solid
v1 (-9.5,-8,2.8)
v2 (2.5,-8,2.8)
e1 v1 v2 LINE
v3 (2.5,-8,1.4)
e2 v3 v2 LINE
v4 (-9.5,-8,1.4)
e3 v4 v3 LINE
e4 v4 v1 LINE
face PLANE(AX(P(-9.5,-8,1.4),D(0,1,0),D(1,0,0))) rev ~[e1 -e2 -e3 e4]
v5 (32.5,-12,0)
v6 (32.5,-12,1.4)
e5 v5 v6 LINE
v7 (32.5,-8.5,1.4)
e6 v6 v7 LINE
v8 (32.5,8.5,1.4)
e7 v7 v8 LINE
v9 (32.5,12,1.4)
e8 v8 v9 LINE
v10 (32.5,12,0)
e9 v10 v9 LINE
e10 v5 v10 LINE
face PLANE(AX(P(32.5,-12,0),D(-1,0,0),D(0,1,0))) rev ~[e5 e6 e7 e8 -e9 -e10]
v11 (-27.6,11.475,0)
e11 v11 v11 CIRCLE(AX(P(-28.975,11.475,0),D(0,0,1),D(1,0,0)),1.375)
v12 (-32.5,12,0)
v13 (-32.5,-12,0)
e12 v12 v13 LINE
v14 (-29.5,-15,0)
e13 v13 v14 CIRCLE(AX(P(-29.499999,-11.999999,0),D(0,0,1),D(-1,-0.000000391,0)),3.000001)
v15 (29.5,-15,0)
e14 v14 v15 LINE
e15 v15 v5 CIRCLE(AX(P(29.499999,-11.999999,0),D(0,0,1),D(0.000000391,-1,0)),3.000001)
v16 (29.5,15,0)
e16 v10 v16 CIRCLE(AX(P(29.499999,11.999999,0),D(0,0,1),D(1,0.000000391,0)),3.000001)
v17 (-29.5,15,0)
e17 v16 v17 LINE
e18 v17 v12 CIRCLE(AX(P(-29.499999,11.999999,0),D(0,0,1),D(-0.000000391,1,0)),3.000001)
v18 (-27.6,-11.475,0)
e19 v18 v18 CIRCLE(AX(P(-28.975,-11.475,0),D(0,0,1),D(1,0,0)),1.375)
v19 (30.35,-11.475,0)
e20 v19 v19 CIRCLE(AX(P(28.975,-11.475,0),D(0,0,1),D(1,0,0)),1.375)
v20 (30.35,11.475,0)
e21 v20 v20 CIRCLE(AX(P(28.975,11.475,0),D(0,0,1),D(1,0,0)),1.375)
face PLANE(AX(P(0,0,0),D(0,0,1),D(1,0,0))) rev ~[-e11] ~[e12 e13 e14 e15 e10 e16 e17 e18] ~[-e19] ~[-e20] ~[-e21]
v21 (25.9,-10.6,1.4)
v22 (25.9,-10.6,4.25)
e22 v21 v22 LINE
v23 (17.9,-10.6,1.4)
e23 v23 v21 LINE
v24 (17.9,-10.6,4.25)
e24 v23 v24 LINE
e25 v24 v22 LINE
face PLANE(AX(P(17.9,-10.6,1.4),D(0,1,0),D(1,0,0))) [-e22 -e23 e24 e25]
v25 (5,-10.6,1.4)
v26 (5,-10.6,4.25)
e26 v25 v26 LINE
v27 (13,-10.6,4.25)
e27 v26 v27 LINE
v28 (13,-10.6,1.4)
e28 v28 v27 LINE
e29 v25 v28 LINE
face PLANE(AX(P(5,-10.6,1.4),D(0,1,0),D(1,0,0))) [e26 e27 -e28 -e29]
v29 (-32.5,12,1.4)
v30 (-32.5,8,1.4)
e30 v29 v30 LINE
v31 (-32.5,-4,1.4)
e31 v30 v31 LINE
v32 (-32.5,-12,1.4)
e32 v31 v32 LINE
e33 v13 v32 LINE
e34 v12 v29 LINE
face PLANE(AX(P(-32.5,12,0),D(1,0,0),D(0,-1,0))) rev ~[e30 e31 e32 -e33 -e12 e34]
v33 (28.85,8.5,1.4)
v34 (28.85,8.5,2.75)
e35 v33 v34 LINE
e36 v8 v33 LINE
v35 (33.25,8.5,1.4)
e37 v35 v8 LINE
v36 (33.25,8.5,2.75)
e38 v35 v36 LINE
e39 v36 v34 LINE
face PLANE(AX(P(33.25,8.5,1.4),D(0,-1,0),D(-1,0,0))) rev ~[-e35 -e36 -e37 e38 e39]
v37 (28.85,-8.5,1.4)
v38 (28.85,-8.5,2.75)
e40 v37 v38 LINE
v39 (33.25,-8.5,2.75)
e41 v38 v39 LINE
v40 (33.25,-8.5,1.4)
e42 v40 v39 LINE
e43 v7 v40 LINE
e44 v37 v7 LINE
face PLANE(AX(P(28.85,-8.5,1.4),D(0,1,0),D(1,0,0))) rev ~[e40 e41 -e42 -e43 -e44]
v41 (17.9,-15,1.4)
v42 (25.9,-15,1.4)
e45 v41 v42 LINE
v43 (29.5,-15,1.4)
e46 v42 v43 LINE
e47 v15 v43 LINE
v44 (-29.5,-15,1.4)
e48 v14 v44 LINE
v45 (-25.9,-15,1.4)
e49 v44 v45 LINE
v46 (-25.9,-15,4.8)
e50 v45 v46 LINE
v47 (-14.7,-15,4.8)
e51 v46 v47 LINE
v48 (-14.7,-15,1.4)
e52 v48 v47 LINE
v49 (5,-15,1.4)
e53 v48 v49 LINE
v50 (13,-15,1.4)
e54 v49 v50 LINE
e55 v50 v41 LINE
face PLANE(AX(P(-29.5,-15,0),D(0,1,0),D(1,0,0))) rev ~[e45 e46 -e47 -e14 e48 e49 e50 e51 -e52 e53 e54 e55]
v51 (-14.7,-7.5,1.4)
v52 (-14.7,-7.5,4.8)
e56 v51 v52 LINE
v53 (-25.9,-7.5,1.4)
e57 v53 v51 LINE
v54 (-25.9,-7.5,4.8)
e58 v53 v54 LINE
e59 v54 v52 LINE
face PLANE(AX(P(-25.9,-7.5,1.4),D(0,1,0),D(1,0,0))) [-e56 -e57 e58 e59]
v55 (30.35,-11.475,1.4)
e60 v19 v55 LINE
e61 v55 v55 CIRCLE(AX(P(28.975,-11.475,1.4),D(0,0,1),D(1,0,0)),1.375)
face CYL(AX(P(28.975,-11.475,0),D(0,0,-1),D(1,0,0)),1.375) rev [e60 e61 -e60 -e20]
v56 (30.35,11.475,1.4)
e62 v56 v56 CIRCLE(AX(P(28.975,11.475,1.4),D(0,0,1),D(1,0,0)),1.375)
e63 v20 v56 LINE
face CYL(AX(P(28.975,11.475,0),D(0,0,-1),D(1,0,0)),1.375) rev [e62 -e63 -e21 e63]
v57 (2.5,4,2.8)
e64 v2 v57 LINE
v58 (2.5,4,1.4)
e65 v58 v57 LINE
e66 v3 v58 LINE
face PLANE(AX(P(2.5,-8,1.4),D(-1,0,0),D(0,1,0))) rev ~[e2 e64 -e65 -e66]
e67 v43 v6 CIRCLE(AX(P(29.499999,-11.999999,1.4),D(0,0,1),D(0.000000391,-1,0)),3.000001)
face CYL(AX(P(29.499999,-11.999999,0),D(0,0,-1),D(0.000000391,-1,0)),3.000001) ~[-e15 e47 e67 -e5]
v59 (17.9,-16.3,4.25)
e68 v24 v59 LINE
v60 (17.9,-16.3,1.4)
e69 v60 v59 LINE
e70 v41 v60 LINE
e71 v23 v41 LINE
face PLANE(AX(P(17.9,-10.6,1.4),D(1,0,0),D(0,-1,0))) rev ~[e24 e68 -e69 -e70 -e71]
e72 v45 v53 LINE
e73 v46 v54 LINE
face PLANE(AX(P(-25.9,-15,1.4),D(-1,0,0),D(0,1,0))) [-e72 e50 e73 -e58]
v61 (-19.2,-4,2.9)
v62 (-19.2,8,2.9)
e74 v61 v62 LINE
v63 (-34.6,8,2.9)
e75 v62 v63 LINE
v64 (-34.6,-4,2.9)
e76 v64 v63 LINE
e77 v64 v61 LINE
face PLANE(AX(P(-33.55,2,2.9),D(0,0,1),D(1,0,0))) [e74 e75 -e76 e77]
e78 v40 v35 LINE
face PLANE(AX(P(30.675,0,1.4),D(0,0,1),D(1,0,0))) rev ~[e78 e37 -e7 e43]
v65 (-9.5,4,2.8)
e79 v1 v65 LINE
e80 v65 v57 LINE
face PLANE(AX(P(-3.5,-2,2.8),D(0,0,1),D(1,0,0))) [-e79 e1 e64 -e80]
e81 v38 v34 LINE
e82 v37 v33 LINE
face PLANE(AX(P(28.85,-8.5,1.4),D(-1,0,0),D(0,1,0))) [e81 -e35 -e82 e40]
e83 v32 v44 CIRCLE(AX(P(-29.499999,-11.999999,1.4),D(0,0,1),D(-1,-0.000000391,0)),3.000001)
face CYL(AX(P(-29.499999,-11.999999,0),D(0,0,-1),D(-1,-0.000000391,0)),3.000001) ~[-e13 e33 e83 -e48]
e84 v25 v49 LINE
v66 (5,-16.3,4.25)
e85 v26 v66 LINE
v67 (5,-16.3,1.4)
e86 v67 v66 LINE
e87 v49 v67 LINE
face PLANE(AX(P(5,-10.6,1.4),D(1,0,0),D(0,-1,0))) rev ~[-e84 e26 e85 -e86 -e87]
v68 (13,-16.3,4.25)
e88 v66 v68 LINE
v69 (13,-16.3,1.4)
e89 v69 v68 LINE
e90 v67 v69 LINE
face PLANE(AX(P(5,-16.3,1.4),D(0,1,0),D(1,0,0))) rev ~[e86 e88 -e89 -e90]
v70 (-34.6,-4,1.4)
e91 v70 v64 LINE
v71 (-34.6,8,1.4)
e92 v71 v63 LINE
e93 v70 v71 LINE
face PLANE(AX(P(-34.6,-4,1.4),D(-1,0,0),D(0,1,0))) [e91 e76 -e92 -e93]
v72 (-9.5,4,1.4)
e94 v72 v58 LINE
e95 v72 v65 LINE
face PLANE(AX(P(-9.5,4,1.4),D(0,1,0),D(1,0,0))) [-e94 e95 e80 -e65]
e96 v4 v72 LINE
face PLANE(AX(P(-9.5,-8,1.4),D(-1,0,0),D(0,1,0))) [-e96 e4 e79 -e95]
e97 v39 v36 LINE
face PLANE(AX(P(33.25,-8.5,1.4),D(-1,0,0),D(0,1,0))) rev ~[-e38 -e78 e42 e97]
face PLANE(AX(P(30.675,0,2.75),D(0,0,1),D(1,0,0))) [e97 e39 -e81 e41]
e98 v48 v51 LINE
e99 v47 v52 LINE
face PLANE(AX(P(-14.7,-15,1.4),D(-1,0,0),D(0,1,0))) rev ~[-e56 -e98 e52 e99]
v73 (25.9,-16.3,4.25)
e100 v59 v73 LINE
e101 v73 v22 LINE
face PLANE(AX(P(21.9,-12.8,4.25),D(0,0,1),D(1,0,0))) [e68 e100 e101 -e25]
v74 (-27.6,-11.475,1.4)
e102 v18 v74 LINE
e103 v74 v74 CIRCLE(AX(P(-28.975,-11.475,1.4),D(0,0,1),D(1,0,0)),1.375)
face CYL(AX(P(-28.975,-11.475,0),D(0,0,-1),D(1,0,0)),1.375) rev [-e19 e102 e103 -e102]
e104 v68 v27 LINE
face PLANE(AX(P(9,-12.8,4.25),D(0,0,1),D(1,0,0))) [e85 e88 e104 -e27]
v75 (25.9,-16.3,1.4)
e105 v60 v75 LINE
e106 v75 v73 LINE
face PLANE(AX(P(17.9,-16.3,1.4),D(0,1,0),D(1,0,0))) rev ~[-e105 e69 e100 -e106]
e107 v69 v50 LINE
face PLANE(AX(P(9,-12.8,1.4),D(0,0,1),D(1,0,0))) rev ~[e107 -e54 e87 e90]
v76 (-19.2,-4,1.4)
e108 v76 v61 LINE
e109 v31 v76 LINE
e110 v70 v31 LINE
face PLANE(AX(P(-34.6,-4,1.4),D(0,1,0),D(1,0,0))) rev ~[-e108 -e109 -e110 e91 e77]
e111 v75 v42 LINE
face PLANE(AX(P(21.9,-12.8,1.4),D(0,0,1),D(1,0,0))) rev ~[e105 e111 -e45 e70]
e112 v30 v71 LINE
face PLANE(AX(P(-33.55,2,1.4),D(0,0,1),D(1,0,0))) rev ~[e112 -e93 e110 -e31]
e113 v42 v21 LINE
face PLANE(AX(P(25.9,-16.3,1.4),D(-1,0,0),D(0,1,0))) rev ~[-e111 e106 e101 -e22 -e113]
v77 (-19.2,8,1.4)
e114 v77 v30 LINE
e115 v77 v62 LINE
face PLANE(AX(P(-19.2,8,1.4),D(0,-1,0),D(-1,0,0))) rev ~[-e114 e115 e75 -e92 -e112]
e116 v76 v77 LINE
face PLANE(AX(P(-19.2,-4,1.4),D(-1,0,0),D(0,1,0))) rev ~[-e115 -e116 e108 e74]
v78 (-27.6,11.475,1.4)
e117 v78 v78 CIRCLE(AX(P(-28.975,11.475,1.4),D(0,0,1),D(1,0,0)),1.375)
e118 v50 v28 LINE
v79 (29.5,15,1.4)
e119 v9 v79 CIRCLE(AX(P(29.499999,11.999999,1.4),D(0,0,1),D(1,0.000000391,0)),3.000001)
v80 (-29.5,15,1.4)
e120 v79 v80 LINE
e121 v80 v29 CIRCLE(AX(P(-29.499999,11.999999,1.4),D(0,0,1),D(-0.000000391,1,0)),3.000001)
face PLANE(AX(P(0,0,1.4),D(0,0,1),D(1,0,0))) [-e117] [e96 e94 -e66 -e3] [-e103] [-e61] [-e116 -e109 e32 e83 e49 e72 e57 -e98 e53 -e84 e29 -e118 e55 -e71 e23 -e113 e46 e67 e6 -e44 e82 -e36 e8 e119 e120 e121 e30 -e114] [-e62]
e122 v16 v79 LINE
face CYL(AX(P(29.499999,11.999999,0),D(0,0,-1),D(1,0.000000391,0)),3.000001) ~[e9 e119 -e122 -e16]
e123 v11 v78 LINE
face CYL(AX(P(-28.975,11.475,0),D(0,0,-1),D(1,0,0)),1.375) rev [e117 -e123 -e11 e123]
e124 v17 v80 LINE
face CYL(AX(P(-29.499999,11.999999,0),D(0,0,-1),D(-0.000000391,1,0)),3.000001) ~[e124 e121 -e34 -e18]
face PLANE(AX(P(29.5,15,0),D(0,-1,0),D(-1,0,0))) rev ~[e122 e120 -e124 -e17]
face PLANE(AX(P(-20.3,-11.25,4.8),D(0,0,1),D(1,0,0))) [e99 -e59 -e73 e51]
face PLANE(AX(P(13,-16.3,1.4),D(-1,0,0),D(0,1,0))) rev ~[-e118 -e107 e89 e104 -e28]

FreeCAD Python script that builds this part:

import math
import FreeCAD as App
import Part
import Sketcher
Q = App.Units.Quantity


def add_polygon(sketch, points):
    """Adds a closed chain of lines whose ends are joined by coincident constraints."""
    first, n = sketch.GeometryCount, len(points)
    for a, b in zip(points, points[1:] + points[:1]):
        sketch.addGeometry(Part.LineSegment(App.Vector(*a, 0), App.Vector(*b, 0)), False)
    for i in range(n):
        sketch.addConstraint(Sketcher.Constraint("Coincident", first + i, 2, first + (i + 1) % n, 1))

doc = App.newDocument("Part")
params = doc.addObject("Spreadsheet::Sheet", "Params")
for row, (alias, value) in enumerate([
    ("sketch1_radius", "3.000001 mm"),
    ("sketch1_diameter", "2.75 mm"),
    ("sketch1_width", "59 mm"),
    ("sketch1_height", "24 mm"),
    ("pad1_length", "1.4 mm"),
    ("sketch2_width", "12 mm"),
    ("pad2_length", "1.4 mm"),
    ("sketch3_width", "11.2 mm"),
    ("sketch3_height", "7.5 mm"),
    ("pad3_length", "3.4 mm"),
    ("sketch4_width", "8 mm"),
    ("sketch4_height", "5.7 mm"),
    ("pad4_length", "2.85 mm"),
    ("sketch5_height", "17 mm"),
    ("sketch5_width", "4.4 mm"),
    ("pad5_length", "1.35 mm"),
    ("sketch6_height", "12 mm"),
    ("sketch6_width", "15.4 mm"),
    ("pad6_length", "1.5 mm"),
], start=1):
    params.set(f"A{row}", alias)
    params.set(f"B{row}", "=" + value)
    params.setAlias(f"B{row}", alias)

body = doc.addObject("PartDesign::Body", "Body")

# Sketch on XY plane
sketch1 = doc.addObject("Sketcher::SketchObject", "Sketch")
body.addObject(sketch1)
sketch1.AttachmentSupport = (doc.XY_Plane, [""])
sketch1.MapMode = "FlatFace"
sketch1.addGeometry(Part.LineSegment(App.Vector(-29.5, -15, 0), App.Vector(29.5, -15, 0)), False)
sketch1.addGeometry(Part.ArcOfCircle(Part.Circle(App.Vector(29.5, -12, 0), App.Vector(0, 0, 1), 3), math.radians(-90), math.radians(0)), False)
sketch1.addGeometry(Part.LineSegment(App.Vector(32.5, -12, 0), App.Vector(32.5, 12, 0)), False)
sketch1.addGeometry(Part.ArcOfCircle(Part.Circle(App.Vector(29.5, 12, 0), App.Vector(0, 0, 1), 3), math.radians(0), math.radians(90)), False)
sketch1.addGeometry(Part.LineSegment(App.Vector(29.5, 15, 0), App.Vector(-29.5, 15, 0)), False)
sketch1.addGeometry(Part.ArcOfCircle(Part.Circle(App.Vector(-29.5, 12, 0), App.Vector(0, 0, 1), 3), math.radians(90), math.radians(180)), False)
sketch1.addGeometry(Part.LineSegment(App.Vector(-32.5, 12, 0), App.Vector(-32.5, -12, 0)), False)
sketch1.addGeometry(Part.ArcOfCircle(Part.Circle(App.Vector(-29.5, -12, 0), App.Vector(0, 0, 1), 3), math.radians(-180), math.radians(-90)), False)
sketch1.addGeometry(Part.Circle(App.Vector(-29, -11.5, 0), App.Vector(0, 0, 1), 1.4), False)
sketch1.addGeometry(Part.Circle(App.Vector(29, -11.5, 0), App.Vector(0, 0, 1), 1.4), False)
sketch1.addGeometry(Part.Circle(App.Vector(-29, 11.5, 0), App.Vector(0, 0, 1), 1.4), False)
sketch1.addGeometry(Part.Circle(App.Vector(29, 11.5, 0), App.Vector(0, 0, 1), 1.4), False)
sketch1.addConstraint(Sketcher.Constraint("Tangent", 0, 2, 1, 1))
sketch1.addConstraint(Sketcher.Constraint("Tangent", 1, 2, 2, 1))
sketch1.addConstraint(Sketcher.Constraint("Tangent", 2, 2, 3, 1))
sketch1.addConstraint(Sketcher.Constraint("Tangent", 3, 2, 4, 1))
sketch1.addConstraint(Sketcher.Constraint("Tangent", 4, 2, 5, 1))
sketch1.addConstraint(Sketcher.Constraint("Tangent", 5, 2, 6, 1))
sketch1.addConstraint(Sketcher.Constraint("Tangent", 6, 2, 7, 1))
sketch1.addConstraint(Sketcher.Constraint("Tangent", 7, 2, 0, 1))
sketch1.addConstraint(Sketcher.Constraint("Horizontal", 0))
sketch1.addConstraint(Sketcher.Constraint("Vertical", 2))
sketch1.addConstraint(Sketcher.Constraint("Horizontal", 4))
sketch1.addConstraint(Sketcher.Constraint("Vertical", 6))
sketch1.addConstraint(Sketcher.Constraint("Equal", 1, 3))
sketch1.addConstraint(Sketcher.Constraint("Equal", 3, 5))
sketch1.addConstraint(Sketcher.Constraint("Equal", 5, 7))
sketch1.addConstraint(Sketcher.Constraint("Equal", 8, 9))
sketch1.addConstraint(Sketcher.Constraint("Equal", 9, 10))
sketch1.addConstraint(Sketcher.Constraint("Equal", 10, 11))
sketch1.addConstraint(Sketcher.Constraint("Symmetric", 1, 3, 5, 3, -1, 1))
sketch1.addConstraint(Sketcher.Constraint("Symmetric", 9, 3, 10, 3, -1, 1))
sketch1.addConstraint(Sketcher.Constraint("Symmetric", 8, 3, 11, 3, -1, 1))
sketch1.addConstraint(Sketcher.Constraint("Symmetric", 8, 3, 9, 3, -2))
sketch1.addConstraint(Sketcher.Constraint("Radius", 1, Q("3.000001 mm")))
sketch1.addConstraint(Sketcher.Constraint("Diameter", 8, Q("2.75 mm")))
sketch1.addConstraint(Sketcher.Constraint("DistanceX", 0, 1, 0, 2, Q("59 mm")))
sketch1.addConstraint(Sketcher.Constraint("DistanceY", 2, 1, 2, 2, Q("24 mm")))
sketch1.addConstraint(Sketcher.Constraint("DistanceX", 8, 3, 9, 3, Q("57.95 mm")))
sketch1.addConstraint(Sketcher.Constraint("DistanceY", 8, 3, 10, 3, Q("22.95 mm")))
sketch1.setExpression("Constraints[22]", "Params.sketch1_radius")
sketch1.setExpression("Constraints[23]", "Params.sketch1_diameter")
sketch1.setExpression("Constraints[24]", "Params.sketch1_width")
sketch1.setExpression("Constraints[25]", "Params.sketch1_height")
pad1 = doc.addObject("PartDesign::Pad", "Pad")
body.addObject(pad1)
pad1.Profile = sketch1
pad1.setExpression("Length", "Params.pad1_length")

# Sketch on XY plane
sketch2 = doc.addObject("Sketcher::SketchObject", "Sketch001")
body.addObject(sketch2)
sketch2.AttachmentSupport = (doc.XY_Plane, [""])
sketch2.MapMode = "FlatFace"
sketch2.AttachmentOffset = App.Placement(App.Vector(0, 0, 1.4), App.Rotation())
add_polygon(sketch2, [(-10, 4), (-10, -8), (2, -8), (2, 4)])  # lines 0-3
sketch2.addConstraint(Sketcher.Constraint("Vertical", 0))
sketch2.addConstraint(Sketcher.Constraint("Horizontal", 1))
sketch2.addConstraint(Sketcher.Constraint("Vertical", 2))
sketch2.addConstraint(Sketcher.Constraint("Horizontal", 3))
sketch2.addConstraint(Sketcher.Constraint("Equal", 3, 0))
sketch2.addConstraint(Sketcher.Constraint("DistanceX", 1, 1, 1, 2, Q("12 mm")))
sketch2.addConstraint(Sketcher.Constraint("DistanceY", 0, 2, -1, 1, Q("8 mm")))
sketch2.addConstraint(Sketcher.Constraint("DistanceX", 0, 2, -1, 1, Q("9.5 mm")))
sketch2.setExpression("Constraints[9]", "Params.sketch2_width")
pad2 = doc.addObject("PartDesign::Pad", "Pad001")
body.addObject(pad2)
pad2.Profile = sketch2
pad2.setExpression("Length", "Params.pad2_length")

# Sketch on XY plane
sketch3 = doc.addObject("Sketcher::SketchObject", "Sketch002")
body.addObject(sketch3)
sketch3.AttachmentSupport = (doc.XY_Plane, [""])
sketch3.MapMode = "FlatFace"
sketch3.AttachmentOffset = App.Placement(App.Vector(0, 0, 1.4), App.Rotation())
add_polygon(sketch3, [(-26, -8), (-26, -15), (-15, -15), (-15, -8)])  # lines 0-3
sketch3.addConstraint(Sketcher.Constraint("Vertical", 0))
sketch3.addConstraint(Sketcher.Constraint("Horizontal", 1))
sketch3.addConstraint(Sketcher.Constraint("Vertical", 2))
sketch3.addConstraint(Sketcher.Constraint("Horizontal", 3))
sketch3.addConstraint(Sketcher.Constraint("DistanceX", 1, 1, 1, 2, Q("11.2 mm")))
sketch3.addConstraint(Sketcher.Constraint("DistanceY", 0, 2, 0, 1, Q("7.5 mm")))
sketch3.addConstraint(Sketcher.Constraint("DistanceY", 0, 2, -1, 1, Q("15 mm")))
sketch3.addConstraint(Sketcher.Constraint("DistanceX", 0, 2, -1, 1, Q("25.9 mm")))
sketch3.setExpression("Constraints[8]", "Params.sketch3_width")
sketch3.setExpression("Constraints[9]", "Params.sketch3_height")
pad3 = doc.addObject("PartDesign::Pad", "Pad002")
body.addObject(pad3)
pad3.Profile = sketch3
pad3.setExpression("Length", "Params.pad3_length")

# Sketch on XY plane
sketch4 = doc.addObject("Sketcher::SketchObject", "Sketch003")
body.addObject(sketch4)
sketch4.AttachmentSupport = (doc.XY_Plane, [""])
sketch4.MapMode = "FlatFace"
sketch4.AttachmentOffset = App.Placement(App.Vector(0, 0, 1.4), App.Rotation())
add_polygon(sketch4, [(5, -11), (5, -16), (13, -16), (13, -11)])  # lines 0-3
add_polygon(sketch4, [(18, -11), (18, -16), (26, -16), (26, -11)])  # lines 4-7
sketch4.addConstraint(Sketcher.Constraint("Vertical", 0))
sketch4.addConstraint(Sketcher.Constraint("Horizontal", 1))
sketch4.addConstraint(Sketcher.Constraint("Vertical", 2))
sketch4.addConstraint(Sketcher.Constraint("Horizontal", 3))
sketch4.addConstraint(Sketcher.Constraint("Vertical", 4))
sketch4.addConstraint(Sketcher.Constraint("Horizontal", 5))
sketch4.addConstraint(Sketcher.Constraint("Vertical", 6))
sketch4.addConstraint(Sketcher.Constraint("Horizontal", 7))
sketch4.addConstraint(Sketcher.Constraint("Horizontal", 1, 2, 4, 2))
sketch4.addConstraint(Sketcher.Constraint("Horizontal", 3, 2, 6, 2))
sketch4.addConstraint(Sketcher.Constraint("Equal", 3, 5))
sketch4.addConstraint(Sketcher.Constraint("DistanceX", 1, 1, 1, 2, Q("8 mm")))
sketch4.addConstraint(Sketcher.Constraint("DistanceY", 0, 2, 0, 1, Q("5.7 mm")))
sketch4.addConstraint(Sketcher.Constraint("DistanceX", -1, 1, 0, 2, Q("5 mm")))
sketch4.addConstraint(Sketcher.Constraint("DistanceY", 0, 2, -1, 1, Q("16.3 mm")))
sketch4.addConstraint(Sketcher.Constraint("DistanceX", -1, 1, 4, 2, Q("17.9 mm")))
sketch4.setExpression("Constraints[19]", "Params.sketch4_width")
sketch4.setExpression("Constraints[20]", "Params.sketch4_height")
pad4 = doc.addObject("PartDesign::Pad", "Pad003")
body.addObject(pad4)
pad4.Profile = sketch4
pad4.setExpression("Length", "Params.pad4_length")

# Sketch on XY plane
sketch5 = doc.addObject("Sketcher::SketchObject", "Sketch004")
body.addObject(sketch5)
sketch5.AttachmentSupport = (doc.XY_Plane, [""])
sketch5.MapMode = "FlatFace"
sketch5.AttachmentOffset = App.Placement(App.Vector(0, 0, 1.4), App.Rotation())
add_polygon(sketch5, [(28.9, 8.5), (28.9, -8.5), (33.2, -8.5), (33.2, 8.5)])  # lines 0-3
sketch5.addConstraint(Sketcher.Constraint("Vertical", 0))
sketch5.addConstraint(Sketcher.Constraint("Horizontal", 1))
sketch5.addConstraint(Sketcher.Constraint("Vertical", 2))
sketch5.addConstraint(Sketcher.Constraint("Horizontal", 3))
sketch5.addConstraint(Sketcher.Constraint("DistanceY", 0, 2, 0, 1, Q("17 mm")))
sketch5.addConstraint(Sketcher.Constraint("DistanceX", 1, 1, 1, 2, Q("4.4 mm")))
sketch5.addConstraint(Sketcher.Constraint("DistanceY", 0, 2, -1, 1, Q("8.5 mm")))
sketch5.addConstraint(Sketcher.Constraint("DistanceX", -1, 1, 0, 2, Q("28.85 mm")))
sketch5.setExpression("Constraints[8]", "Params.sketch5_height")
sketch5.setExpression("Constraints[9]", "Params.sketch5_width")
pad5 = doc.addObject("PartDesign::Pad", "Pad004")
body.addObject(pad5)
pad5.Profile = sketch5
pad5.setExpression("Length", "Params.pad5_length")

# Sketch on XY plane
sketch6 = doc.addObject("Sketcher::SketchObject", "Sketch005")
body.addObject(sketch6)
sketch6.AttachmentSupport = (doc.XY_Plane, [""])
sketch6.MapMode = "FlatFace"
sketch6.AttachmentOffset = App.Placement(App.Vector(0, 0, 1.4), App.Rotation())
add_polygon(sketch6, [(-35, 8), (-35, -4), (-19, -4), (-19, 8)])  # lines 0-3
sketch6.addConstraint(Sketcher.Constraint("Vertical", 0))
sketch6.addConstraint(Sketcher.Constraint("Horizontal", 1))
sketch6.addConstraint(Sketcher.Constraint("Vertical", 2))
sketch6.addConstraint(Sketcher.Constraint("Horizontal", 3))
sketch6.addConstraint(Sketcher.Constraint("DistanceY", 0, 2, 0, 1, Q("12 mm")))
sketch6.addConstraint(Sketcher.Constraint("DistanceX", 1, 1, 1, 2, Q("15.4 mm")))
sketch6.addConstraint(Sketcher.Constraint("DistanceY", 0, 2, -1, 1, Q("4 mm")))
sketch6.addConstraint(Sketcher.Constraint("DistanceX", 0, 2, -1, 1, Q("34.6 mm")))
sketch6.setExpression("Constraints[8]", "Params.sketch6_height")
sketch6.setExpression("Constraints[9]", "Params.sketch6_width")
pad6 = doc.addObject("PartDesign::Pad", "Pad005")
body.addObject(pad6)
pad6.Profile = sketch6
pad6.setExpression("Length", "Params.pad6_length")

doc.recompute()
